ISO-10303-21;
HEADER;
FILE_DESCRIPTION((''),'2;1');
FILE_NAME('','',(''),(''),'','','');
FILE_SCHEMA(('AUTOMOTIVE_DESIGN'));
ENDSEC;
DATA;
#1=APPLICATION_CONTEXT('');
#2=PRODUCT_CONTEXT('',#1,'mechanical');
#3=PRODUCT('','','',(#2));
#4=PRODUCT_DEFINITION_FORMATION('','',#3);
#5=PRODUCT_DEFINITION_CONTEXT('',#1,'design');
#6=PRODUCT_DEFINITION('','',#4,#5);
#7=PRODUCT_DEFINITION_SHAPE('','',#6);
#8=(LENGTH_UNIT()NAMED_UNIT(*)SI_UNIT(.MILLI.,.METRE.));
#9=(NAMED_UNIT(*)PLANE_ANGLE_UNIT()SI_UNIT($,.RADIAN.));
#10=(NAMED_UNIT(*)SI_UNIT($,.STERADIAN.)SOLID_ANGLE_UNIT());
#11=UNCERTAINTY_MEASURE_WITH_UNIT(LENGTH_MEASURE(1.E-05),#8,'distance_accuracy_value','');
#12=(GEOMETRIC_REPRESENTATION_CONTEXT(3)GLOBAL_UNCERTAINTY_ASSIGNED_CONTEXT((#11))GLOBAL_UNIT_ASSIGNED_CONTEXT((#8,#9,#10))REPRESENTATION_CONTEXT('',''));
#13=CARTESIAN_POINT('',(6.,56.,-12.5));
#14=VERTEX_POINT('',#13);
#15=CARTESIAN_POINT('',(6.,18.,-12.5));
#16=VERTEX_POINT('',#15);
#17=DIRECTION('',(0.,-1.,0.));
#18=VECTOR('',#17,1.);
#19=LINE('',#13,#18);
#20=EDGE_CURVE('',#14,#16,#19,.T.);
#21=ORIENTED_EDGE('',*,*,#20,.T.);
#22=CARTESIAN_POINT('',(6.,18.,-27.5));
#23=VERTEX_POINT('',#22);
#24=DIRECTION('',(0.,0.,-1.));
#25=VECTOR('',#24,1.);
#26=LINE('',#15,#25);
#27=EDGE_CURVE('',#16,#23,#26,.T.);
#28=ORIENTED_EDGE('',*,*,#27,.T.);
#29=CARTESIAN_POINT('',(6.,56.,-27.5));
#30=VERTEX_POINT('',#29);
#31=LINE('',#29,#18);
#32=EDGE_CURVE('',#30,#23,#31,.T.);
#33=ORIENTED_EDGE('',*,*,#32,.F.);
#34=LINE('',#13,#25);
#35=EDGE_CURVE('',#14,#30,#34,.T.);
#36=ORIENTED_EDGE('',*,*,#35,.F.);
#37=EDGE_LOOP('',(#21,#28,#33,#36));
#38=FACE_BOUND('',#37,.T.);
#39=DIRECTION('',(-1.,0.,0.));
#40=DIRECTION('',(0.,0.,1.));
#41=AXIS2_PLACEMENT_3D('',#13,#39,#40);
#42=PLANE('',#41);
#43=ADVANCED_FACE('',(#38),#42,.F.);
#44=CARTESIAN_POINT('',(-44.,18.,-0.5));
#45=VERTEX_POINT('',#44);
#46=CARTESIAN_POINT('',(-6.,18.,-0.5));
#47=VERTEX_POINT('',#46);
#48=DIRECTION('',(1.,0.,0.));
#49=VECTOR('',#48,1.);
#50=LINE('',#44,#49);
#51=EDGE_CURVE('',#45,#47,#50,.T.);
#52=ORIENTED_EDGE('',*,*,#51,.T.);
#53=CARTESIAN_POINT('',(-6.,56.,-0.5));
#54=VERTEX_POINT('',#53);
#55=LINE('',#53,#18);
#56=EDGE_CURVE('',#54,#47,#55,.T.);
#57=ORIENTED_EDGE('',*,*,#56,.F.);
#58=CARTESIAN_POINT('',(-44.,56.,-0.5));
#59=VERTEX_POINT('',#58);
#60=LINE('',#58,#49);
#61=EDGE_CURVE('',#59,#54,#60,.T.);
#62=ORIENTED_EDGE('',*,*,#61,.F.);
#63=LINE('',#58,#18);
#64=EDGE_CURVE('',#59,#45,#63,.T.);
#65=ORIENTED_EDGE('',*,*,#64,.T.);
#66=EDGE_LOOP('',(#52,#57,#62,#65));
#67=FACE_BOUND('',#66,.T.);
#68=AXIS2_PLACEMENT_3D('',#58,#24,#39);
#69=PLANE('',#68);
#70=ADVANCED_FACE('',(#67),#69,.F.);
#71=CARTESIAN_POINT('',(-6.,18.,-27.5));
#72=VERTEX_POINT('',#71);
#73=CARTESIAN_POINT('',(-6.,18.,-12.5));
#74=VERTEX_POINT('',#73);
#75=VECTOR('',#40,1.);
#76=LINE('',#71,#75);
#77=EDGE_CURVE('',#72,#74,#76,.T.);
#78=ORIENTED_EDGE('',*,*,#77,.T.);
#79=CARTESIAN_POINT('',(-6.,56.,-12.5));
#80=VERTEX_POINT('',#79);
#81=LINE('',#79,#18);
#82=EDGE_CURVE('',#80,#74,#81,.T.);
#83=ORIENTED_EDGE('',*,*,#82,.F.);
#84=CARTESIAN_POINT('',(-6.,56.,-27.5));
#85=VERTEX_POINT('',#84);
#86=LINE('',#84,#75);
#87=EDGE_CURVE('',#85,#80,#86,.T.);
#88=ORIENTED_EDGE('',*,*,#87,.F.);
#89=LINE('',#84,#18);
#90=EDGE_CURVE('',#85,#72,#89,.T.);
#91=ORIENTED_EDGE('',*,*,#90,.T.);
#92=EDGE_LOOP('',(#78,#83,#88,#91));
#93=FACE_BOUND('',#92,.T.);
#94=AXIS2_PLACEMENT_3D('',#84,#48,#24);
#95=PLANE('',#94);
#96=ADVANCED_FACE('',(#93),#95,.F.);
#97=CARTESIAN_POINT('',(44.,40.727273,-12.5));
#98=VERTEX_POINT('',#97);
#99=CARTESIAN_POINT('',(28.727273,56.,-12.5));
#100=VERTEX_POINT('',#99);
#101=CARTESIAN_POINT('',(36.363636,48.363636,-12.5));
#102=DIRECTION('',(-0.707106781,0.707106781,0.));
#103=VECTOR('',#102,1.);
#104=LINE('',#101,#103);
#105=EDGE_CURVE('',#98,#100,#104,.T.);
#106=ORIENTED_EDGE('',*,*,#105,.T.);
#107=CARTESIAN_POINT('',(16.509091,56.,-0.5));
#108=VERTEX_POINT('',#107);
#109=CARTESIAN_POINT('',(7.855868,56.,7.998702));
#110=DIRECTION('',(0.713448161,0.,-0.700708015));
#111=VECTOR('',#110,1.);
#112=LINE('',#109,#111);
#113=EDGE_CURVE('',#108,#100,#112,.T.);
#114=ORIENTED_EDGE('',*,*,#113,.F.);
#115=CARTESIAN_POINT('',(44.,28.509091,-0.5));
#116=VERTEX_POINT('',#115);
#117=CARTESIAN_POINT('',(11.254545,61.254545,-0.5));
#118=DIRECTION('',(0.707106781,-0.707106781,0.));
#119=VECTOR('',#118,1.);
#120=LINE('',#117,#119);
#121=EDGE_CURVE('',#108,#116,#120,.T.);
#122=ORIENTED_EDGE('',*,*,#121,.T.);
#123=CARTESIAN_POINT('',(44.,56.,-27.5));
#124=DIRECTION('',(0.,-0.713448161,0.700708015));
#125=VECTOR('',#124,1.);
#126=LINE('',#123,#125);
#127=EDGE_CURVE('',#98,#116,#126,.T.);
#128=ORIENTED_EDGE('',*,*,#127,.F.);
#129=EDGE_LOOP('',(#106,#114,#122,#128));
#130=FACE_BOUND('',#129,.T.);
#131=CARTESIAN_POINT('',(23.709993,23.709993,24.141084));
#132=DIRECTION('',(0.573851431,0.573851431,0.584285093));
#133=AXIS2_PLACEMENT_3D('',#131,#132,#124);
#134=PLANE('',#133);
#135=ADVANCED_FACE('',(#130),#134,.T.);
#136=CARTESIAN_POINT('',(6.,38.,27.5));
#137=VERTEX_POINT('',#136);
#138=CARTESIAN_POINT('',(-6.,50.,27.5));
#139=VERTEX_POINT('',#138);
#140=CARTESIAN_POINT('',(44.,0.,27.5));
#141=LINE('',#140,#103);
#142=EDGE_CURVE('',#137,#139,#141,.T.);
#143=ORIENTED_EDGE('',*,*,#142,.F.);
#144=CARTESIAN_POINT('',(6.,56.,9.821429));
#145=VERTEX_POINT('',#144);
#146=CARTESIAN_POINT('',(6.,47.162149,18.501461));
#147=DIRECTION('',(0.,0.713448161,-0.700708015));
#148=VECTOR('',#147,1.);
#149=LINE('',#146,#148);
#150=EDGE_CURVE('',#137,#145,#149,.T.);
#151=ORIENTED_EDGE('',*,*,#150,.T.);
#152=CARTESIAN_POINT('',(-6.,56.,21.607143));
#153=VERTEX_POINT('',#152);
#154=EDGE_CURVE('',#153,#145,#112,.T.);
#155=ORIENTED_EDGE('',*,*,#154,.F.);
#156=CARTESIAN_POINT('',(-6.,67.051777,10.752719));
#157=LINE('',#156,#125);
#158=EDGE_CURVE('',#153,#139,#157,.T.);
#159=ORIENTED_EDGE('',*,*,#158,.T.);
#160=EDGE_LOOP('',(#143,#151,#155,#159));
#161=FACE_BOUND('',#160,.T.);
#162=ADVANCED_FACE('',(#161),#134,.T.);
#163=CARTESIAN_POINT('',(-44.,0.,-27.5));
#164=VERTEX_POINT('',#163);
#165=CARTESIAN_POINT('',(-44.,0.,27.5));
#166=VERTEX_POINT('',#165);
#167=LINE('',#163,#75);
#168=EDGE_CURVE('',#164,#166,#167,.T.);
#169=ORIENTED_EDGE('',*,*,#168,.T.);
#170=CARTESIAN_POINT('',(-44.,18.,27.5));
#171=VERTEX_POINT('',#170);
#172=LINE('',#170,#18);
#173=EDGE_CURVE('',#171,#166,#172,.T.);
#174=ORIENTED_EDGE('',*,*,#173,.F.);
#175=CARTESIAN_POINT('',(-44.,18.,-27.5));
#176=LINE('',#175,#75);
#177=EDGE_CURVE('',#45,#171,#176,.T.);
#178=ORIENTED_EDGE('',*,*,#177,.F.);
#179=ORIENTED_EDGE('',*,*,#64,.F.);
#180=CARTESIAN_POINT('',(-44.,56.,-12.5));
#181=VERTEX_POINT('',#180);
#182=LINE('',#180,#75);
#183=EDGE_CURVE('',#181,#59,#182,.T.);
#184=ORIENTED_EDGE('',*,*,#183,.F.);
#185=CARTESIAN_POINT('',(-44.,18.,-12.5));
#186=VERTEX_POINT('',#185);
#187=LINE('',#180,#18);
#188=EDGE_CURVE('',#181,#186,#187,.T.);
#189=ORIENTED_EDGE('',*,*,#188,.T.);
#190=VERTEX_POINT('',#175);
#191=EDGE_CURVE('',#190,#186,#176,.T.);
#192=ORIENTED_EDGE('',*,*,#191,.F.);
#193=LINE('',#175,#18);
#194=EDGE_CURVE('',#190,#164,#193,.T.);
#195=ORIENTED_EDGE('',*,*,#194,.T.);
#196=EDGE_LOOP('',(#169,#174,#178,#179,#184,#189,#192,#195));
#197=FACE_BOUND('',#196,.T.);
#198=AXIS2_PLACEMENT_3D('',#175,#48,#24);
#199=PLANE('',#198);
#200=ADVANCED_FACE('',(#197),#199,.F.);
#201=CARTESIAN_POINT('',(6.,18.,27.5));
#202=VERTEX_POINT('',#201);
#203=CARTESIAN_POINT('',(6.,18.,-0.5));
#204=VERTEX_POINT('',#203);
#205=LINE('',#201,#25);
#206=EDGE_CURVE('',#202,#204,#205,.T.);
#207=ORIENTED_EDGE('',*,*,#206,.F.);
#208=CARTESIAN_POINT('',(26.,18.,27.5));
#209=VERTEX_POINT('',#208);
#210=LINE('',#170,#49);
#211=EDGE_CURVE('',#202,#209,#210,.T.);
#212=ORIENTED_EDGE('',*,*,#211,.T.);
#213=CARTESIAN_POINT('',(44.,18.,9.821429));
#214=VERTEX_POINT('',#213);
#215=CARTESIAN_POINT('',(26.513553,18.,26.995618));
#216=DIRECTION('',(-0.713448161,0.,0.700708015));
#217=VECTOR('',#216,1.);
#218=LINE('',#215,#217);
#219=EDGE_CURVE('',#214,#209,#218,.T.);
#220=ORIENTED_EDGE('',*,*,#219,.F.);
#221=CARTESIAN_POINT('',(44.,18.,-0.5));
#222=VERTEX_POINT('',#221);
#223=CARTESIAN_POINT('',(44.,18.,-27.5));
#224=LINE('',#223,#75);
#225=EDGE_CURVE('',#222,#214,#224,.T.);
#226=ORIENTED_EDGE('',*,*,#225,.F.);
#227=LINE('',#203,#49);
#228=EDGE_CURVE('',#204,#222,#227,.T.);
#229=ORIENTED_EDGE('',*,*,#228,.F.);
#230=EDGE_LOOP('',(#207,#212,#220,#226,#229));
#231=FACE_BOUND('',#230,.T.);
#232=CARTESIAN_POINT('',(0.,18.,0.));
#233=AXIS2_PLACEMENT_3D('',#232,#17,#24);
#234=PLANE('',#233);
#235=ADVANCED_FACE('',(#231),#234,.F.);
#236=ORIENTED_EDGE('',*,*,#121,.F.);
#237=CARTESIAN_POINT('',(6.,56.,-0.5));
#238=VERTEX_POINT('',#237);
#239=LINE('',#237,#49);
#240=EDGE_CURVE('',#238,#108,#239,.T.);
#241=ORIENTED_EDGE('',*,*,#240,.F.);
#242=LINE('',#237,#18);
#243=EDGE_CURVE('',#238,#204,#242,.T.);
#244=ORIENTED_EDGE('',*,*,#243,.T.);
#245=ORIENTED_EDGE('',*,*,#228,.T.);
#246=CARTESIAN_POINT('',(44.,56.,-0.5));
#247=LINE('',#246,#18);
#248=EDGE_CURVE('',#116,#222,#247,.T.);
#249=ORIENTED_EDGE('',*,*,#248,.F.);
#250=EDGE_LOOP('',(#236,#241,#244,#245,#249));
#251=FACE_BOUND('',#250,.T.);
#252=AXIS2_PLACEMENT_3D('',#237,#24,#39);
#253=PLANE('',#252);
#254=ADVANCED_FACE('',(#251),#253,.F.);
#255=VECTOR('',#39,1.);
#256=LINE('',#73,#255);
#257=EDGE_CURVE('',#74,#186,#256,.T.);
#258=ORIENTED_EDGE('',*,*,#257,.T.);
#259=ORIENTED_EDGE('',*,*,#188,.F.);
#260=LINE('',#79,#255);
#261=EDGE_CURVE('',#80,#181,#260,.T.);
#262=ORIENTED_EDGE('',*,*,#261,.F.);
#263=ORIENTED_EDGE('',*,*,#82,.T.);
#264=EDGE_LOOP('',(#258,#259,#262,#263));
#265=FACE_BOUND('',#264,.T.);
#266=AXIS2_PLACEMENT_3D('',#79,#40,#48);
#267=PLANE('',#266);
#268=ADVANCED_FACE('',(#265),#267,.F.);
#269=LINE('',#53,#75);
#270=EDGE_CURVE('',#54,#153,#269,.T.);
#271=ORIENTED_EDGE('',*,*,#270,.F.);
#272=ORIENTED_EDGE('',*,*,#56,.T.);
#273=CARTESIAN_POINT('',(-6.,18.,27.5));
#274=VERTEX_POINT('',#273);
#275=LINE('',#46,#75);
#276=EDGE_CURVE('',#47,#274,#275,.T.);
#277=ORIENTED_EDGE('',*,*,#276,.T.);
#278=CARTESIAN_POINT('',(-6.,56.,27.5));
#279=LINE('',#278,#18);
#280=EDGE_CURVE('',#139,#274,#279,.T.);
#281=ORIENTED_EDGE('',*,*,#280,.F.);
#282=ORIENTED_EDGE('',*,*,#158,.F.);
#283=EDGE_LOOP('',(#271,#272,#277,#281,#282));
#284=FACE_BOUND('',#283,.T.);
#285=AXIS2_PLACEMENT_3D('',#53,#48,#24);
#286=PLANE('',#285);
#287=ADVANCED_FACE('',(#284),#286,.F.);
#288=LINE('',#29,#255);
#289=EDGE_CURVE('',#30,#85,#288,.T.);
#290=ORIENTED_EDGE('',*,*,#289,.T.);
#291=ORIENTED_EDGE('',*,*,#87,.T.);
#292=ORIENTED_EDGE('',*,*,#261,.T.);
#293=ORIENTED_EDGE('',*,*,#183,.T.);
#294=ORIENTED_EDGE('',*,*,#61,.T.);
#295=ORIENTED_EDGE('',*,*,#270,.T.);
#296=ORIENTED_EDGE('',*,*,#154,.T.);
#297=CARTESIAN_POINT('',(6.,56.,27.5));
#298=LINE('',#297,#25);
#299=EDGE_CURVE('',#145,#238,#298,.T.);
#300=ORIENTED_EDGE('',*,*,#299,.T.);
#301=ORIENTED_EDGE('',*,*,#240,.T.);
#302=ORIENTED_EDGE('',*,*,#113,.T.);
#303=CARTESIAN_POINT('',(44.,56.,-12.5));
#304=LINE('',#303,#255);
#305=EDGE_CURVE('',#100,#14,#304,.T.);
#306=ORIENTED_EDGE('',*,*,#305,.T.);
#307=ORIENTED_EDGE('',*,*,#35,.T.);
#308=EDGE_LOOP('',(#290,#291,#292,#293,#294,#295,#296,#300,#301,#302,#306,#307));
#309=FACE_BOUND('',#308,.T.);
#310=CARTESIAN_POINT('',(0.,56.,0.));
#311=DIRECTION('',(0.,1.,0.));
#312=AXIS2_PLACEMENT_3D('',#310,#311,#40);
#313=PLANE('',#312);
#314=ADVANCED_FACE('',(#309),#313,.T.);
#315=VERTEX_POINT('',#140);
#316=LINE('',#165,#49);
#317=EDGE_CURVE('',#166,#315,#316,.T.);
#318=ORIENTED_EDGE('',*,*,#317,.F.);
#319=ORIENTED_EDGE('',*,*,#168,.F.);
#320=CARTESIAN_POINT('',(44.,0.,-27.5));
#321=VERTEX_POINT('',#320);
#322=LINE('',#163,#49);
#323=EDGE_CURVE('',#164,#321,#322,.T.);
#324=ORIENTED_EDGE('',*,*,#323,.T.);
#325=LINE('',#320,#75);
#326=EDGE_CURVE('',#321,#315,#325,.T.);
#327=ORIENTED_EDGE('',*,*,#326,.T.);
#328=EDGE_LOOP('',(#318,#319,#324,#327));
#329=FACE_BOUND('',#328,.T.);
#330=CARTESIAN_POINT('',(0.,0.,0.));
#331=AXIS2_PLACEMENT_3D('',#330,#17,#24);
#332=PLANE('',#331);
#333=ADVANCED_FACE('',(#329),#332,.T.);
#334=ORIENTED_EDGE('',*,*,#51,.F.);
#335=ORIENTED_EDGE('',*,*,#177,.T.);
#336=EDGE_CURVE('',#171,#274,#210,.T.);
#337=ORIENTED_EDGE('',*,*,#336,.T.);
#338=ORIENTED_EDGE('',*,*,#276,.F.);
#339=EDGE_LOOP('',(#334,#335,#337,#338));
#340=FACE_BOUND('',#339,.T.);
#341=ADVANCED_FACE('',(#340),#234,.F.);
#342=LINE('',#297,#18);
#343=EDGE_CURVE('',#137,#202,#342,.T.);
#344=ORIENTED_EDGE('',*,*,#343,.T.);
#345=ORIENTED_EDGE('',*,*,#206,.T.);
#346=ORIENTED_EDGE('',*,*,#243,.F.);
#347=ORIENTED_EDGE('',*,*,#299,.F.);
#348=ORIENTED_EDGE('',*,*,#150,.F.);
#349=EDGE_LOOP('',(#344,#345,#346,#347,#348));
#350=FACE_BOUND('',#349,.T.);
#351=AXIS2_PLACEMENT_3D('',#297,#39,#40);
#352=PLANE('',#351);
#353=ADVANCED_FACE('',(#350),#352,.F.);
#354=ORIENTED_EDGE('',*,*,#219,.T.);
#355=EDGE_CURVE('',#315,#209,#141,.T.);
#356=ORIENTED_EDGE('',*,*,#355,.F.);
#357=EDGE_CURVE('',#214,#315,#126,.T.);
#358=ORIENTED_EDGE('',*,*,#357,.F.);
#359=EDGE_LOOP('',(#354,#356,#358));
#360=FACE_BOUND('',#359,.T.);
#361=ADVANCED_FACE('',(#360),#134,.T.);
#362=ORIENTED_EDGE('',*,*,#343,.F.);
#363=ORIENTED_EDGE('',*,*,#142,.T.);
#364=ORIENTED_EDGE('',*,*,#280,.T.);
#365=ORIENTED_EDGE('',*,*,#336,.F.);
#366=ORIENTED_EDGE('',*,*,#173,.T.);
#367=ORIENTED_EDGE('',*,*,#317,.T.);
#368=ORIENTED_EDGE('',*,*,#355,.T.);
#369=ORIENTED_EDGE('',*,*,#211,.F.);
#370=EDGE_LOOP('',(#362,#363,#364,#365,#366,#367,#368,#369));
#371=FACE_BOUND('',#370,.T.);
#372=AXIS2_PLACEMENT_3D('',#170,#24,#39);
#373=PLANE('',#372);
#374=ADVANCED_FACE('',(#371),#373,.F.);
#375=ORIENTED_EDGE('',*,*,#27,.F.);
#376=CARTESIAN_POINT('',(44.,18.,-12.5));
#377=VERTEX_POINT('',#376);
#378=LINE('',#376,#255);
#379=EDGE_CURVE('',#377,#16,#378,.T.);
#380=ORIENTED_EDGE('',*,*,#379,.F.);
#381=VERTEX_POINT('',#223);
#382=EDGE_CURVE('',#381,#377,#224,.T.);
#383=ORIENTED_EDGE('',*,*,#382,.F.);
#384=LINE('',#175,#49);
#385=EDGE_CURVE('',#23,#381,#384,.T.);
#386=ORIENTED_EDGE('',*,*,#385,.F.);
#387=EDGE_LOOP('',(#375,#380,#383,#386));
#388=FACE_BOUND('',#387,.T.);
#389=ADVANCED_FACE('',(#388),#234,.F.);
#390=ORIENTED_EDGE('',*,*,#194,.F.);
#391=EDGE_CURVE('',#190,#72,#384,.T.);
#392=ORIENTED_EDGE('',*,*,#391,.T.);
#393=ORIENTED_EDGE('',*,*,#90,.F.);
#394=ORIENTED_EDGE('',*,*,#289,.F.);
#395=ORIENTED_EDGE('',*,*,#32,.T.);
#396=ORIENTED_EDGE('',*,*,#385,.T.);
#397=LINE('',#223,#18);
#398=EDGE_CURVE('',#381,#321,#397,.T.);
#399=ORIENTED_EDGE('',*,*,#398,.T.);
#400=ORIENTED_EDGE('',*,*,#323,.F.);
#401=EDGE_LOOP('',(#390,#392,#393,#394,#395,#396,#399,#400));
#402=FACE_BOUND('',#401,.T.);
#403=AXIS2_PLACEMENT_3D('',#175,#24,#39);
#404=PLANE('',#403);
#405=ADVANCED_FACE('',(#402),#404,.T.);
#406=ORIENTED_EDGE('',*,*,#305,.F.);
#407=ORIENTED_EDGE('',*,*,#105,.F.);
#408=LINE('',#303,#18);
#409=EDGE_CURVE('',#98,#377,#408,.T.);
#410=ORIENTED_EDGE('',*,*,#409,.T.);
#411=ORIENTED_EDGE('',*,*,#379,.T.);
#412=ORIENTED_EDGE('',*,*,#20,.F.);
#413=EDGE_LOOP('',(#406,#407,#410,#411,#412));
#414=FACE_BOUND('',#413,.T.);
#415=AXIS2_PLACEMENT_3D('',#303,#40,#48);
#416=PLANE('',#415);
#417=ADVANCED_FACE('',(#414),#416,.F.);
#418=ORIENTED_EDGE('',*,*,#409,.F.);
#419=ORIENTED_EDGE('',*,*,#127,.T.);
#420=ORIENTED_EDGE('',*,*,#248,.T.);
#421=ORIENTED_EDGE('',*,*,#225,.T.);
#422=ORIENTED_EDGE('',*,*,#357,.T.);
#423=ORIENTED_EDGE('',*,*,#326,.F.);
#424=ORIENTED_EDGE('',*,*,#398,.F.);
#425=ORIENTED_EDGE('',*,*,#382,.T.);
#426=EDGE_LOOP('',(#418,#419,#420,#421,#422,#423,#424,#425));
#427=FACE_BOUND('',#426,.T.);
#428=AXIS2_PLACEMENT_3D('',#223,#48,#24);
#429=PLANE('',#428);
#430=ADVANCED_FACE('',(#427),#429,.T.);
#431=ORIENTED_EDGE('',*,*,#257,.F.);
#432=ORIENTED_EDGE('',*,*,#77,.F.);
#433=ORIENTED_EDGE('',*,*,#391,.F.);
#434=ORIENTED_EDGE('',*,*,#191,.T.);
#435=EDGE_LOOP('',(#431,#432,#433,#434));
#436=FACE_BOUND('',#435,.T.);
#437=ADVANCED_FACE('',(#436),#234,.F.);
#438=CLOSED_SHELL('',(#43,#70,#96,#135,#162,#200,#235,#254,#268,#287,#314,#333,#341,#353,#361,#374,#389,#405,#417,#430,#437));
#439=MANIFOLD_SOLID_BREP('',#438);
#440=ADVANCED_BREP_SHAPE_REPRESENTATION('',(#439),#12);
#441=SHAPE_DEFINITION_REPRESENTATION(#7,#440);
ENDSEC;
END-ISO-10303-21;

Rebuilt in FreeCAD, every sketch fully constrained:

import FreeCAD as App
import Part
import Sketcher

V = App.Vector


def add_polygon(sketch, points):
    """Adds a closed chain of lines whose ends are joined by coincident constraints."""
    first, n = sketch.GeometryCount, len(points)
    for a, b in zip(points, points[1:] + points[:1]):
        sketch.addGeometry(Part.LineSegment(App.Vector(*a, 0), App.Vector(*b, 0)), False)
    for i in range(n):
        sketch.addConstraint(Sketcher.Constraint("Coincident", first + i, 2, first + (i + 1) % n, 1))

doc = App.newDocument("Part")
params = doc.addObject("Spreadsheet::Sheet", "Params")
for row, (alias, value) in enumerate([
    ("sketch1_width", "88 mm"),
    ("sketch1_height", "55 mm"),
    ("pad1_length", "18 mm"),
    ("sketch2_width", "38 mm"),
    ("sketch2_width2", "12 mm"),
    ("sketch2_height", "15 mm"),
    ("sketch2_height2", "28 mm"),
    ("pad2_length", "38 mm"),
    ("pocket1_length", "38 mm"),
], start=1):
    params.set(f"A{row}", alias)
    params.set(f"B{row}", "=" + value)
    params.setAlias(f"B{row}", alias)

body = doc.addObject("PartDesign::Body", "Body")

# Sketch on XZ plane
sketch1 = body.newObject("Sketcher::SketchObject", "Sketch")
sketch1.AttachmentSupport = (doc.getObject("XZ_Plane"), [""])
sketch1.MapMode = "FlatFace"
add_polygon(sketch1, [(-44, -28), (-44, 28), (44, 28), (44, -28)])  # lines 0-3
sketch1.addConstraint(Sketcher.Constraint("Vertical", 0))
sketch1.addConstraint(Sketcher.Constraint("Horizontal", 1))
sketch1.addConstraint(Sketcher.Constraint("Vertical", 2))
sketch1.addConstraint(Sketcher.Constraint("Horizontal", 3))
sketch1.addConstraint(Sketcher.Constraint("Symmetric", 0, 2, 2, 2, -1, 1))
sketch1.addConstraint(Sketcher.Constraint("DistanceX", 1, 1, 1, 2, 88.0))
sketch1.addConstraint(Sketcher.Constraint("DistanceY", 0, 1, 0, 2, 55.0))
sketch1.setExpression("Constraints[9]", "Params.sketch1_width")
sketch1.setExpression("Constraints[10]", "Params.sketch1_height")
pad1 = body.newObject("PartDesign::Pad", "Pad")
pad1.Profile = sketch1
pad1.setExpression("Length", "Params.pad1_length")
pad1.Reversed = True

# Sketch on XZ plane
sketch2 = body.newObject("Sketcher::SketchObject", "Sketch001")
sketch2.AttachmentSupport = (doc.getObject("XZ_Plane"), [""])
sketch2.MapMode = "FlatFace"
sketch2.AttachmentOffset = App.Placement(V(0, 0, -18), App.Rotation())
add_polygon(sketch2, [(-6, -28), (-6, -12), (-44, -12), (-44, 0), (-6, 0), (-6, 28), (6, 28), (6, 0), (44, 0), (44, -12), (6, -12), (6, -28)])  # lines 0-11
sketch2.addConstraint(Sketcher.Constraint("Vertical", 0))
sketch2.addConstraint(Sketcher.Constraint("Horizontal", 1))
sketch2.addConstraint(Sketcher.Constraint("Vertical", 2))
sketch2.addConstraint(Sketcher.Constraint("Horizontal", 3))
sketch2.addConstraint(Sketcher.Constraint("Vertical", 4))
sketch2.addConstraint(Sketcher.Constraint("Horizontal", 5))
sketch2.addConstraint(Sketcher.Constraint("Vertical", 6))
sketch2.addConstraint(Sketcher.Constraint("Horizontal", 7))
sketch2.addConstraint(Sketcher.Constraint("Vertical", 8))
sketch2.addConstraint(Sketcher.Constraint("Horizontal", 9))
sketch2.addConstraint(Sketcher.Constraint("Vertical", 10))
sketch2.addConstraint(Sketcher.Constraint("Horizontal", 11))
sketch2.addConstraint(Sketcher.Constraint("Symmetric", 4, 2, 10, 2, -1, 1))
sketch2.addConstraint(Sketcher.Constraint("Symmetric", 3, 2, 6, 2, -2))
sketch2.addConstraint(Sketcher.Constraint("Symmetric", 1, 2, 8, 2, -2))
sketch2.addConstraint(Sketcher.Constraint("Vertical", 0, 2, 3, 2))
sketch2.addConstraint(Sketcher.Constraint("Equal", 11, 2))
sketch2.addConstraint(Sketcher.Constraint("DistanceX", 1, 2, 1, 1, 38.0))
sketch2.addConstraint(Sketcher.Constraint("DistanceX", 5, 1, 5, 2, 12.0))
sketch2.addConstraint(Sketcher.Constraint("DistanceY", 0, 1, 0, 2, 15.0))
sketch2.addConstraint(Sketcher.Constraint("DistanceY", 4, 1, 4, 2, 28.0))
sketch2.setExpression("Constraints[29]", "Params.sketch2_width")
sketch2.setExpression("Constraints[30]", "Params.sketch2_width2")
sketch2.setExpression("Constraints[31]", "Params.sketch2_height")
sketch2.setExpression("Constraints[32]", "Params.sketch2_height2")
pad2 = body.newObject("PartDesign::Pad", "Pad001")
pad2.Profile = sketch2
pad2.setExpression("Length", "Params.pad2_length")
pad2.Reversed = True

# Sketch on an angled plane
sketch3 = body.newObject("Sketcher::SketchObject", "Sketch002")
sketch3.Placement = App.Placement(V(23.709993, 23.709993, 24.141084), App.Rotation(V(-0.818959422, 0.402102297, 0.409413248), V(0, 0.71344816, -0.700708015), V(-0.573851431, -0.573851431, -0.584285093), "ZXY"))
add_polygon(sketch3, [(-25, -19), (44, 21), (-25, 59)])  # lines 0-2
sketch3.addConstraint(Sketcher.Constraint("Vertical", 2))
sketch3.addConstraint(Sketcher.Constraint("Distance", 0, 79.195959))
sketch3.addConstraint(Sketcher.Constraint("DistanceY", 2, 2, 2, 1, 78.492038))
sketch3.addConstraint(Sketcher.Constraint("DistanceX", 1, 2, -1, 1, 24.77535))
sketch3.addConstraint(Sketcher.Constraint("DistanceY", 2, 2, -1, 1, 19.26947))
sketch3.addConstraint(Sketcher.Constraint("DistanceY", 0, 2, 1, 2, 38.538941))
pocket1 = body.newObject("PartDesign::Pocket", "Pocket")
pocket1.Profile = sketch3
pocket1.setExpression("Length", "Params.pocket1_length")

doc.recompute()
